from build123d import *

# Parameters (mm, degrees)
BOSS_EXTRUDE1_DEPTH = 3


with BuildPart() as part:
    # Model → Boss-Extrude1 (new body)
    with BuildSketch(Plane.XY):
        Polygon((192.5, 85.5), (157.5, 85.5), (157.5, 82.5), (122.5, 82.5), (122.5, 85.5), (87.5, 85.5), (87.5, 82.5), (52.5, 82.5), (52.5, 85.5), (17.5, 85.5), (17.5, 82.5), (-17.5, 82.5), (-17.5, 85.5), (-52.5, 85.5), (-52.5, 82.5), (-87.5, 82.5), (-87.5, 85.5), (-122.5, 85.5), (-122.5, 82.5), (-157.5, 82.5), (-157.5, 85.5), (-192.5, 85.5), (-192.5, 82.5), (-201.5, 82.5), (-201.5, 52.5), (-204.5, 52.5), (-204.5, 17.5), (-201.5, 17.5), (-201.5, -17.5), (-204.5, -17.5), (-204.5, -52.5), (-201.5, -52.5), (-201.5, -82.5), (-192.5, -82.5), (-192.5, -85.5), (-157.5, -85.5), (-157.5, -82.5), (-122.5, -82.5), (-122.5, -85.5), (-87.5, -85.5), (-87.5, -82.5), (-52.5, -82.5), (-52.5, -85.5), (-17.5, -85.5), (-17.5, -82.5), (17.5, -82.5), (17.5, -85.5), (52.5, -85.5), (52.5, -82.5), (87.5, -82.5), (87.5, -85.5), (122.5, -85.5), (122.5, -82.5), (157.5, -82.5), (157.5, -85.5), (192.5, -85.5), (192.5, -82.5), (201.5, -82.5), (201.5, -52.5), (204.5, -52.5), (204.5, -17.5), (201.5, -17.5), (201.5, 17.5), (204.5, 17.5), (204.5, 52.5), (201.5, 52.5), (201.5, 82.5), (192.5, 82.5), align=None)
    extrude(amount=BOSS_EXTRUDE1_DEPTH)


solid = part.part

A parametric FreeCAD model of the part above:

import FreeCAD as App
import Part
import Sketcher

V = App.Vector

doc = App.newDocument("Part")
body = doc.addObject("PartDesign::Body", "Body")

# Sketch on XY plane
sketch1 = body.newObject("Sketcher::SketchObject", "Sketch")
sketch1.AttachmentSupport = (doc.getObject("XY_Plane"), [""])
sketch1.MapMode = "FlatFace"
sketch1.addGeometry(Part.LineSegment(V(192.5, 85.5, 0), V(157.5, 85.5, 0)), False)
sketch1.addGeometry(Part.LineSegment(V(157.5, 85.5, 0), V(157.5, 82.5, 0)), False)
sketch1.addGeometry(Part.LineSegment(V(157.5, 82.5, 0), V(122.5, 82.5, 0)), False)
sketch1.addGeometry(Part.LineSegment(V(122.5, 82.5, 0), V(122.5, 85.5, 0)), False)
sketch1.addGeometry(Part.LineSegment(V(122.5, 85.5, 0), V(87.5, 85.5, 0)), False)
sketch1.addGeometry(Part.LineSegment(V(87.5, 85.5, 0), V(87.5, 82.5, 0)), False)
sketch1.addGeometry(Part.LineSegment(V(87.5, 82.5, 0), V(52.5, 82.5, 0)), False)
sketch1.addGeometry(Part.LineSegment(V(52.5, 82.5, 0), V(52.5, 85.5, 0)), False)
sketch1.addGeometry(Part.LineSegment(V(52.5, 85.5, 0), V(17.5, 85.5, 0)), False)
sketch1.addGeometry(Part.LineSegment(V(17.5, 85.5, 0), V(17.5, 82.5, 0)), False)
sketch1.addGeometry(Part.LineSegment(V(17.5, 82.5, 0), V(-17.5, 82.5, 0)), False)
sketch1.addGeometry(Part.LineSegment(V(-17.5, 82.5, 0), V(-17.5, 85.5, 0)), False)
sketch1.addGeometry(Part.LineSegment(V(-17.5, 85.5, 0), V(-52.5, 85.5, 0)), False)
sketch1.addGeometry(Part.LineSegment(V(-52.5, 85.5, 0), V(-52.5, 82.5, 0)), False)
sketch1.addGeometry(Part.LineSegment(V(-52.5, 82.5, 0), V(-87.5, 82.5, 0)), False)
sketch1.addGeometry(Part.LineSegment(V(-87.5, 82.5, 0), V(-87.5, 85.5, 0)), False)
sketch1.addGeometry(Part.LineSegment(V(-87.5, 85.5, 0), V(-122.5, 85.5, 0)), False)
sketch1.addGeometry(Part.LineSegment(V(-122.5, 85.5, 0), V(-122.5, 82.5, 0)), False)
sketch1.addGeometry(Part.LineSegment(V(-122.5, 82.5, 0), V(-157.5, 82.5, 0)), False)
sketch1.addGeometry(Part.LineSegment(V(-157.5, 82.5, 0), V(-157.5, 85.5, 0)), False)
sketch1.addGeometry(Part.LineSegment(V(-157.5, 85.5, 0), V(-192.5, 85.5, 0)), False)
sketch1.addGeometry(Part.LineSegment(V(-192.5, 85.5, 0), V(-192.5, 82.5, 0)), False)
sketch1.addGeometry(Part.LineSegment(V(-192.5, 82.5, 0), V(-201.5, 82.5, 0)), False)
sketch1.addGeometry(Part.LineSegment(V(-201.5, 82.5, 0), V(-201.5, 52.5, 0)), False)
sketch1.addGeometry(Part.LineSegment(V(-201.5, 52.5, 0), V(-204.5, 52.5, 0)), False)
sketch1.addGeometry(Part.LineSegment(V(-204.5, 52.5, 0), V(-204.5, 17.5, 0)), False)
sketch1.addGeometry(Part.LineSegment(V(-204.5, 17.5, 0), V(-201.5, 17.5, 0)), False)
sketch1.addGeometry(Part.LineSegment(V(-201.5, 17.5, 0), V(-201.5, -17.5, 0)), False)
sketch1.addGeometry(Part.LineSegment(V(-201.5, -17.5, 0), V(-204.5, -17.5, 0)), False)
sketch1.addGeometry(Part.LineSegment(V(-204.5, -17.5, 0), V(-204.5, -52.5, 0)), False)
sketch1.addGeometry(Part.LineSegment(V(-204.5, -52.5, 0), V(-201.5, -52.5, 0)), False)
sketch1.addGeometry(Part.LineSegment(V(-201.5, -52.5, 0), V(-201.5, -82.5, 0)), False)
sketch1.addGeometry(Part.LineSegment(V(-201.5, -82.5, 0), V(-192.5, -82.5, 0)), False)
sketch1.addGeometry(Part.LineSegment(V(-192.5, -82.5, 0), V(-192.5, -85.5, 0)), False)
sketch1.addGeometry(Part.LineSegment(V(-192.5, -85.5, 0), V(-157.5, -85.5, 0)), False)
sketch1.addGeometry(Part.LineSegment(V(-157.5, -85.5, 0), V(-157.5, -82.5, 0)), False)
sketch1.addGeometry(Part.LineSegment(V(-157.5, -82.5, 0), V(-122.5, -82.5, 0)), False)
sketch1.addGeometry(Part.LineSegment(V(-122.5, -82.5, 0), V(-122.5, -85.5, 0)), False)
sketch1.addGeometry(Part.LineSegment(V(-122.5, -85.5, 0), V(-87.5, -85.5, 0)), False)
sketch1.addGeometry(Part.LineSegment(V(-87.5, -85.5, 0), V(-87.5, -82.5, 0)), False)
sketch1.addGeometry(Part.LineSegment(V(-87.5, -82.5, 0), V(-52.5, -82.5, 0)), False)
sketch1.addGeometry(Part.LineSegment(V(-52.5, -82.5, 0), V(-52.5, -85.5, 0)), False)
sketch1.addGeometry(Part.LineSegment(V(-52.5, -85.5, 0), V(-17.5, -85.5, 0)), False)
sketch1.addGeometry(Part.LineSegment(V(-17.5, -85.5, 0), V(-17.5, -82.5, 0)), False)
sketch1.addGeometry(Part.LineSegment(V(-17.5, -82.5, 0), V(17.5, -82.5, 0)), False)
sketch1.addGeometry(Part.LineSegment(V(17.5, -82.5, 0), V(17.5, -85.5, 0)), False)
sketch1.addGeometry(Part.LineSegment(V(17.5, -85.5, 0), V(52.5, -85.5, 0)), False)
sketch1.addGeometry(Part.LineSegment(V(52.5, -85.5, 0), V(52.5, -82.5, 0)), False)
sketch1.addGeometry(Part.LineSegment(V(52.5, -82.5, 0), V(87.5, -82.5, 0)), False)
sketch1.addGeometry(Part.LineSegment(V(87.5, -82.5, 0), V(87.5, -85.5, 0)), False)
sketch1.addGeometry(Part.LineSegment(V(87.5, -85.5, 0), V(122.5, -85.5, 0)), False)
sketch1.addGeometry(Part.LineSegment(V(122.5, -85.5, 0), V(122.5, -82.5, 0)), False)
sketch1.addGeometry(Part.LineSegment(V(122.5, -82.5, 0), V(157.5, -82.5, 0)), False)
sketch1.addGeometry(Part.LineSegment(V(157.5, -82.5, 0), V(157.5, -85.5, 0)), False)
sketch1.addGeometry(Part.LineSegment(V(157.5, -85.5, 0), V(192.5, -85.5, 0)), False)
sketch1.addGeometry(Part.LineSegment(V(192.5, -85.5, 0), V(192.5, -82.5, 0)), False)
sketch1.addGeometry(Part.LineSegment(V(192.5, -82.5, 0), V(201.5, -82.5, 0)), False)
sketch1.addGeometry(Part.LineSegment(V(201.5, -82.5, 0), V(201.5, -52.5, 0)), False)
sketch1.addGeometry(Part.LineSegment(V(201.5, -52.5, 0), V(204.5, -52.5, 0)), False)
sketch1.addGeometry(Part.LineSegment(V(204.5, -52.5, 0), V(204.5, -17.5, 0)), False)
sketch1.addGeometry(Part.LineSegment(V(204.5, -17.5, 0), V(201.5, -17.5, 0)), False)
sketch1.addGeometry(Part.LineSegment(V(201.5, -17.5, 0), V(201.5, 17.5, 0)), False)
sketch1.addGeometry(Part.LineSegment(V(201.5, 17.5, 0), V(204.5, 17.5, 0)), False)
sketch1.addGeometry(Part.LineSegment(V(204.5, 17.5, 0), V(204.5, 52.5, 0)), False)
sketch1.addGeometry(Part.LineSegment(V(204.5, 52.5, 0), V(201.5, 52.5, 0)), False)
sketch1.addGeometry(Part.LineSegment(V(201.5, 52.5, 0), V(201.5, 82.5, 0)), False)
sketch1.addGeometry(Part.LineSegment(V(201.5, 82.5, 0), V(192.5, 82.5, 0)), False)
sketch1.addGeometry(Part.LineSegment(V(192.5, 82.5, 0), V(192.5, 85.5, 0)), False)
sketch1.addConstraint(Sketcher.Constraint("Coincident", 0, 2, 1, 1))
sketch1.addConstraint(Sketcher.Constraint("Coincident", 1, 2, 2, 1))
sketch1.addConstraint(Sketcher.Constraint("Coincident", 2, 2, 3, 1))
sketch1.addConstraint(Sketcher.Constraint("Coincident", 3, 2, 4, 1))
sketch1.addConstraint(Sketcher.Constraint("Coincident", 4, 2, 5, 1))
sketch1.addConstraint(Sketcher.Constraint("Coincident", 5, 2, 6, 1))
sketch1.addConstraint(Sketcher.Constraint("Coincident", 6, 2, 7, 1))
sketch1.addConstraint(Sketcher.Constraint("Coincident", 7, 2, 8, 1))
sketch1.addConstraint(Sketcher.Constraint("Coincident", 8, 2, 9, 1))
sketch1.addConstraint(Sketcher.Constraint("Coincident", 9, 2, 10, 1))
sketch1.addConstraint(Sketcher.Constraint("Coincident", 10, 2, 11, 1))
sketch1.addConstraint(Sketcher.Constraint("Coincident", 11, 2, 12, 1))
sketch1.addConstraint(Sketcher.Constraint("Coincident", 12, 2, 13, 1))
sketch1.addConstraint(Sketcher.Constraint("Coincident", 13, 2, 14, 1))
sketch1.addConstraint(Sketcher.Constraint("Coincident", 14, 2, 15, 1))
sketch1.addConstraint(Sketcher.Constraint("Coincident", 15, 2, 16, 1))
sketch1.addConstraint(Sketcher.Constraint("Coincident", 16, 2, 17, 1))
sketch1.addConstraint(Sketcher.Constraint("Coincident", 17, 2, 18, 1))
sketch1.addConstraint(Sketcher.Constraint("Coincident", 18, 2, 19, 1))
sketch1.addConstraint(Sketcher.Constraint("Coincident", 19, 2, 20, 1))
sketch1.addConstraint(Sketcher.Constraint("Coincident", 20, 2, 21, 1))
sketch1.addConstraint(Sketcher.Constraint("Coincident", 21, 2, 22, 1))
sketch1.addConstraint(Sketcher.Constraint("Coincident", 22, 2, 23, 1))
sketch1.addConstraint(Sketcher.Constraint("Coincident", 23, 2, 24, 1))
sketch1.addConstraint(Sketcher.Constraint("Coincident", 24, 2, 25, 1))
sketch1.addConstraint(Sketcher.Constraint("Coincident", 25, 2, 26, 1))
sketch1.addConstraint(Sketcher.Constraint("Coincident", 26, 2, 27, 1))
sketch1.addConstraint(Sketcher.Constraint("Coincident", 27, 2, 28, 1))
sketch1.addConstraint(Sketcher.Constraint("Coincident", 28, 2, 29, 1))
sketch1.addConstraint(Sketcher.Constraint("Coincident", 29, 2, 30, 1))
sketch1.addConstraint(Sketcher.Constraint("Coincident", 30, 2, 31, 1))
sketch1.addConstraint(Sketcher.Constraint("Coincident", 31, 2, 32, 1))
sketch1.addConstraint(Sketcher.Constraint("Coincident", 32, 2, 33, 1))
sketch1.addConstraint(Sketcher.Constraint("Coincident", 33, 2, 34, 1))
sketch1.addConstraint(Sketcher.Constraint("Coincident", 34, 2, 35, 1))
sketch1.addConstraint(Sketcher.Constraint("Coincident", 35, 2, 36, 1))
sketch1.addConstraint(Sketcher.Constraint("Coincident", 36, 2, 37, 1))
sketch1.addConstraint(Sketcher.Constraint("Coincident", 37, 2, 38, 1))
sketch1.addConstraint(Sketcher.Constraint("Coincident", 38, 2, 39, 1))
sketch1.addConstraint(Sketcher.Constraint("Coincident", 39, 2, 40, 1))
sketch1.addConstraint(Sketcher.Constraint("Coincident", 40, 2, 41, 1))
sketch1.addConstraint(Sketcher.Constraint("Coincident", 41, 2, 42, 1))
sketch1.addConstraint(Sketcher.Constraint("Coincident", 42, 2, 43, 1))
sketch1.addConstraint(Sketcher.Constraint("Coincident", 43, 2, 44, 1))
sketch1.addConstraint(Sketcher.Constraint("Coincident", 44, 2, 45, 1))
sketch1.addConstraint(Sketcher.Constraint("Coincident", 45, 2, 46, 1))
sketch1.addConstraint(Sketcher.Constraint("Coincident", 46, 2, 47, 1))
sketch1.addConstraint(Sketcher.Constraint("Coincident", 47, 2, 48, 1))
sketch1.addConstraint(Sketcher.Constraint("Coincident", 48, 2, 49, 1))
sketch1.addConstraint(Sketcher.Constraint("Coincident", 49, 2, 50, 1))
sketch1.addConstraint(Sketcher.Constraint("Coincident", 50, 2, 51, 1))
sketch1.addConstraint(Sketcher.Constraint("Coincident", 51, 2, 52, 1))
sketch1.addConstraint(Sketcher.Constraint("Coincident", 52, 2, 53, 1))
sketch1.addConstraint(Sketcher.Constraint("Coincident", 53, 2, 54, 1))
sketch1.addConstraint(Sketcher.Constraint("Coincident", 54, 2, 55, 1))
sketch1.addConstraint(Sketcher.Constraint("Coincident", 55, 2, 56, 1))
sketch1.addConstraint(Sketcher.Constraint("Coincident", 56, 2, 57, 1))
sketch1.addConstraint(Sketcher.Constraint("Coincident", 57, 2, 58, 1))
sketch1.addConstraint(Sketcher.Constraint("Coincident", 58, 2, 59, 1))
sketch1.addConstraint(Sketcher.Constraint("Coincident", 59, 2, 60, 1))
sketch1.addConstraint(Sketcher.Constraint("Coincident", 60, 2, 61, 1))
sketch1.addConstraint(Sketcher.Constraint("Coincident", 61, 2, 62, 1))
sketch1.addConstraint(Sketcher.Constraint("Coincident", 62, 2, 63, 1))
sketch1.addConstraint(Sketcher.Constraint("Coincident", 63, 2, 64, 1))
sketch1.addConstraint(Sketcher.Constraint("Coincident", 64, 2, 65, 1))
sketch1.addConstraint(Sketcher.Constraint("Coincident", 65, 2, 66, 1))
sketch1.addConstraint(Sketcher.Constraint("Coincident", 66, 2, 67, 1))
sketch1.addConstraint(Sketcher.Constraint("Coincident", 67, 2, 0, 1))
sketch1.addConstraint(Sketcher.Constraint("Horizontal", 0))
sketch1.addConstraint(Sketcher.Constraint("Vertical", 1))
sketch1.addConstraint(Sketcher.Constraint("Horizontal", 2))
sketch1.addConstraint(Sketcher.Constraint("Vertical", 3))
sketch1.addConstraint(Sketcher.Constraint("Horizontal", 4))
sketch1.addConstraint(Sketcher.Constraint("Vertical", 5))
sketch1.addConstraint(Sketcher.Constraint("Horizontal", 6))
sketch1.addConstraint(Sketcher.Constraint("Vertical", 7))
sketch1.addConstraint(Sketcher.Constraint("Horizontal", 8))
sketch1.addConstraint(Sketcher.Constraint("Vertical", 9))
sketch1.addConstraint(Sketcher.Constraint("Horizontal", 10))
sketch1.addConstraint(Sketcher.Constraint("Vertical", 11))
sketch1.addConstraint(Sketcher.Constraint("Horizontal", 12))
sketch1.addConstraint(Sketcher.Constraint("Vertical", 13))
sketch1.addConstraint(Sketcher.Constraint("Horizontal", 14))
sketch1.addConstraint(Sketcher.Constraint("Vertical", 15))
sketch1.addConstraint(Sketcher.Constraint("Horizontal", 16))
sketch1.addConstraint(Sketcher.Constraint("Vertical", 17))
sketch1.addConstraint(Sketcher.Constraint("Horizontal", 18))
sketch1.addConstraint(Sketcher.Constraint("Vertical", 19))
sketch1.addConstraint(Sketcher.Constraint("Horizontal", 20))
sketch1.addConstraint(Sketcher.Constraint("Vertical", 21))
sketch1.addConstraint(Sketcher.Constraint("Horizontal", 22))
sketch1.addConstraint(Sketcher.Constraint("Vertical", 23))
sketch1.addConstraint(Sketcher.Constraint("Horizontal", 24))
sketch1.addConstraint(Sketcher.Constraint("Vertical", 25))
sketch1.addConstraint(Sketcher.Constraint("Horizontal", 26))
sketch1.addConstraint(Sketcher.Constraint("Vertical", 27))
sketch1.addConstraint(Sketcher.Constraint("Horizontal", 28))
sketch1.addConstraint(Sketcher.Constraint("Vertical", 29))
sketch1.addConstraint(Sketcher.Constraint("Horizontal", 30))
sketch1.addConstraint(Sketcher.Constraint("Vertical", 31))
sketch1.addConstraint(Sketcher.Constraint("Horizontal", 32))
sketch1.addConstraint(Sketcher.Constraint("Vertical", 33))
sketch1.addConstraint(Sketcher.Constraint("Horizontal", 34))
sketch1.addConstraint(Sketcher.Constraint("Vertical", 35))
sketch1.addConstraint(Sketcher.Constraint("Horizontal", 36))
sketch1.addConstraint(Sketcher.Constraint("Vertical", 37))
sketch1.addConstraint(Sketcher.Constraint("Horizontal", 38))
sketch1.addConstraint(Sketcher.Constraint("Vertical", 39))
sketch1.addConstraint(Sketcher.Constraint("Horizontal", 40))
sketch1.addConstraint(Sketcher.Constraint("Vertical", 41))
sketch1.addConstraint(Sketcher.Constraint("Horizontal", 42))
sketch1.addConstraint(Sketcher.Constraint("Vertical", 43))
sketch1.addConstraint(Sketcher.Constraint("Horizontal", 44))
sketch1.addConstraint(Sketcher.Constraint("Vertical", 45))
sketch1.addConstraint(Sketcher.Constraint("Horizontal", 46))
sketch1.addConstraint(Sketcher.Constraint("Vertical", 47))
sketch1.addConstraint(Sketcher.Constraint("Horizontal", 48))
sketch1.addConstraint(Sketcher.Constraint("Vertical", 49))
sketch1.addConstraint(Sketcher.Constraint("Horizontal", 50))
sketch1.addConstraint(Sketcher.Constraint("Vertical", 51))
sketch1.addConstraint(Sketcher.Constraint("Horizontal", 52))
sketch1.addConstraint(Sketcher.Constraint("Vertical", 53))
sketch1.addConstraint(Sketcher.Constraint("Horizontal", 54))
sketch1.addConstraint(Sketcher.Constraint("Vertical", 55))
sketch1.addConstraint(Sketcher.Constraint("Horizontal", 56))
sketch1.addConstraint(Sketcher.Constraint("Vertical", 57))
sketch1.addConstraint(Sketcher.Constraint("Horizontal", 58))
sketch1.addConstraint(Sketcher.Constraint("Vertical", 59))
sketch1.addConstraint(Sketcher.Constraint("Horizontal", 60))
sketch1.addConstraint(Sketcher.Constraint("Vertical", 61))
sketch1.addConstraint(Sketcher.Constraint("Horizontal", 62))
sketch1.addConstraint(Sketcher.Constraint("Vertical", 63))
sketch1.addConstraint(Sketcher.Constraint("Horizontal", 64))
sketch1.addConstraint(Sketcher.Constraint("Vertical", 65))
sketch1.addConstraint(Sketcher.Constraint("Horizontal", 66))
sketch1.addConstraint(Sketcher.Constraint("Vertical", 67))
sketch1.addConstraint(Sketcher.Constraint("Symmetric", 0, 2, 34, 2, -1, 1))
sketch1.addConstraint(Sketcher.Constraint("Symmetric", 2, 2, 36, 2, -1, 1))
sketch1.addConstraint(Sketcher.Constraint("Symmetric", 4, 2, 38, 2, -1, 1))
sketch1.addConstraint(Sketcher.Constraint("Symmetric", 6, 2, 40, 2, -1, 1))
sketch1.addConstraint(Sketcher.Constraint("Symmetric", 8, 2, 42, 2, -1, 1))
sketch1.addConstraint(Sketcher.Constraint("Symmetric", 10, 2, 44, 2, -1, 1))
sketch1.addConstraint(Sketcher.Constraint("Symmetric", 12, 2, 46, 2, -1, 1))
sketch1.addConstraint(Sketcher.Constraint("Symmetric", 14, 2, 48, 2, -1, 1))
sketch1.addConstraint(Sketcher.Constraint("Symmetric", 16, 2, 50, 2, -1, 1))
sketch1.addConstraint(Sketcher.Constraint("Symmetric", 18, 2, 52, 2, -1, 1))
sketch1.addConstraint(Sketcher.Constraint("Symmetric", 20, 2, 54, 2, -1, 1))
sketch1.addConstraint(Sketcher.Constraint("Symmetric", 22, 2, 56, 2, -1, 1))
sketch1.addConstraint(Sketcher.Constraint("Symmetric", 24, 2, 58, 2, -1, 1))
sketch1.addConstraint(Sketcher.Constraint("Symmetric", 26, 2, 60, 2, -1, 1))
sketch1.addConstraint(Sketcher.Constraint("Symmetric", 28, 2, 62, 2, -1, 1))
sketch1.addConstraint(Sketcher.Constraint("Symmetric", 30, 2, 64, 2, -1, 1))
sketch1.addConstraint(Sketcher.Constraint("Symmetric", 32, 2, 66, 2, -1, 1))
sketch1.addConstraint(Sketcher.Constraint("Symmetric", 8, 2, 11, 2, -2))
sketch1.addConstraint(Sketcher.Constraint("Symmetric", 6, 2, 13, 2, -2))
sketch1.addConstraint(Sketcher.Constraint("Symmetric", 4, 2, 15, 2, -2))
sketch1.addConstraint(Sketcher.Constraint("Symmetric", 2, 2, 17, 2, -2))
sketch1.addConstraint(Sketcher.Constraint("Symmetric", 0, 2, 19, 2, -2))
sketch1.addConstraint(Sketcher.Constraint("Symmetric", 32, 2, 55, 2, -2))
sketch1.addConstraint(Sketcher.Constraint("Symmetric", 30, 2, 57, 2, -2))
sketch1.addConstraint(Sketcher.Constraint("Symmetric", 28, 2, 59, 2, -2))
sketch1.addConstraint(Sketcher.Constraint("Horizontal", 0, 2, 3, 2))
sketch1.addConstraint(Sketcher.Constraint("Horizontal", 2, 2, 5, 2))
sketch1.addConstraint(Sketcher.Constraint("Horizontal", 4, 2, 7, 2))
sketch1.addConstraint(Sketcher.Constraint("Horizontal", 6, 2, 9, 2))
sketch1.addConstraint(Sketcher.Constraint("Horizontal", 18, 2, 21, 2))
sketch1.addConstraint(Sketcher.Constraint("Vertical", 23, 2, 26, 2))
sketch1.addConstraint(Sketcher.Constraint("Equal", 0, 2))
sketch1.addConstraint(Sketcher.Constraint("Equal", 2, 4))
sketch1.addConstraint(Sketcher.Constraint("Equal", 4, 6))
sketch1.addConstraint(Sketcher.Constraint("Equal", 6, 8))
sketch1.addConstraint(Sketcher.Constraint("Equal", 8, 10))
sketch1.addConstraint(Sketcher.Constraint("Equal", 64, 1))
sketch1.addConstraint(Sketcher.Constraint("Equal", 54, 25))
sketch1.addConstraint(Sketcher.Constraint("Equal", 25, 27))
sketch1.addConstraint(Sketcher.Constraint("DistanceX", 0, 2, 0, 1, 35.0))
sketch1.addConstraint(Sketcher.Constraint("DistanceX", 22, 2, 22, 1, 9.0))
sketch1.addConstraint(Sketcher.Constraint("DistanceX", 24, 2, 24, 1, 3.0))
sketch1.addConstraint(Sketcher.Constraint("DistanceY", 23, 2, 23, 1, 30.0))
pad1 = body.newObject("PartDesign::Pad", "Pad")
pad1.Profile = sketch1
pad1.Length = 3

doc.recompute()
